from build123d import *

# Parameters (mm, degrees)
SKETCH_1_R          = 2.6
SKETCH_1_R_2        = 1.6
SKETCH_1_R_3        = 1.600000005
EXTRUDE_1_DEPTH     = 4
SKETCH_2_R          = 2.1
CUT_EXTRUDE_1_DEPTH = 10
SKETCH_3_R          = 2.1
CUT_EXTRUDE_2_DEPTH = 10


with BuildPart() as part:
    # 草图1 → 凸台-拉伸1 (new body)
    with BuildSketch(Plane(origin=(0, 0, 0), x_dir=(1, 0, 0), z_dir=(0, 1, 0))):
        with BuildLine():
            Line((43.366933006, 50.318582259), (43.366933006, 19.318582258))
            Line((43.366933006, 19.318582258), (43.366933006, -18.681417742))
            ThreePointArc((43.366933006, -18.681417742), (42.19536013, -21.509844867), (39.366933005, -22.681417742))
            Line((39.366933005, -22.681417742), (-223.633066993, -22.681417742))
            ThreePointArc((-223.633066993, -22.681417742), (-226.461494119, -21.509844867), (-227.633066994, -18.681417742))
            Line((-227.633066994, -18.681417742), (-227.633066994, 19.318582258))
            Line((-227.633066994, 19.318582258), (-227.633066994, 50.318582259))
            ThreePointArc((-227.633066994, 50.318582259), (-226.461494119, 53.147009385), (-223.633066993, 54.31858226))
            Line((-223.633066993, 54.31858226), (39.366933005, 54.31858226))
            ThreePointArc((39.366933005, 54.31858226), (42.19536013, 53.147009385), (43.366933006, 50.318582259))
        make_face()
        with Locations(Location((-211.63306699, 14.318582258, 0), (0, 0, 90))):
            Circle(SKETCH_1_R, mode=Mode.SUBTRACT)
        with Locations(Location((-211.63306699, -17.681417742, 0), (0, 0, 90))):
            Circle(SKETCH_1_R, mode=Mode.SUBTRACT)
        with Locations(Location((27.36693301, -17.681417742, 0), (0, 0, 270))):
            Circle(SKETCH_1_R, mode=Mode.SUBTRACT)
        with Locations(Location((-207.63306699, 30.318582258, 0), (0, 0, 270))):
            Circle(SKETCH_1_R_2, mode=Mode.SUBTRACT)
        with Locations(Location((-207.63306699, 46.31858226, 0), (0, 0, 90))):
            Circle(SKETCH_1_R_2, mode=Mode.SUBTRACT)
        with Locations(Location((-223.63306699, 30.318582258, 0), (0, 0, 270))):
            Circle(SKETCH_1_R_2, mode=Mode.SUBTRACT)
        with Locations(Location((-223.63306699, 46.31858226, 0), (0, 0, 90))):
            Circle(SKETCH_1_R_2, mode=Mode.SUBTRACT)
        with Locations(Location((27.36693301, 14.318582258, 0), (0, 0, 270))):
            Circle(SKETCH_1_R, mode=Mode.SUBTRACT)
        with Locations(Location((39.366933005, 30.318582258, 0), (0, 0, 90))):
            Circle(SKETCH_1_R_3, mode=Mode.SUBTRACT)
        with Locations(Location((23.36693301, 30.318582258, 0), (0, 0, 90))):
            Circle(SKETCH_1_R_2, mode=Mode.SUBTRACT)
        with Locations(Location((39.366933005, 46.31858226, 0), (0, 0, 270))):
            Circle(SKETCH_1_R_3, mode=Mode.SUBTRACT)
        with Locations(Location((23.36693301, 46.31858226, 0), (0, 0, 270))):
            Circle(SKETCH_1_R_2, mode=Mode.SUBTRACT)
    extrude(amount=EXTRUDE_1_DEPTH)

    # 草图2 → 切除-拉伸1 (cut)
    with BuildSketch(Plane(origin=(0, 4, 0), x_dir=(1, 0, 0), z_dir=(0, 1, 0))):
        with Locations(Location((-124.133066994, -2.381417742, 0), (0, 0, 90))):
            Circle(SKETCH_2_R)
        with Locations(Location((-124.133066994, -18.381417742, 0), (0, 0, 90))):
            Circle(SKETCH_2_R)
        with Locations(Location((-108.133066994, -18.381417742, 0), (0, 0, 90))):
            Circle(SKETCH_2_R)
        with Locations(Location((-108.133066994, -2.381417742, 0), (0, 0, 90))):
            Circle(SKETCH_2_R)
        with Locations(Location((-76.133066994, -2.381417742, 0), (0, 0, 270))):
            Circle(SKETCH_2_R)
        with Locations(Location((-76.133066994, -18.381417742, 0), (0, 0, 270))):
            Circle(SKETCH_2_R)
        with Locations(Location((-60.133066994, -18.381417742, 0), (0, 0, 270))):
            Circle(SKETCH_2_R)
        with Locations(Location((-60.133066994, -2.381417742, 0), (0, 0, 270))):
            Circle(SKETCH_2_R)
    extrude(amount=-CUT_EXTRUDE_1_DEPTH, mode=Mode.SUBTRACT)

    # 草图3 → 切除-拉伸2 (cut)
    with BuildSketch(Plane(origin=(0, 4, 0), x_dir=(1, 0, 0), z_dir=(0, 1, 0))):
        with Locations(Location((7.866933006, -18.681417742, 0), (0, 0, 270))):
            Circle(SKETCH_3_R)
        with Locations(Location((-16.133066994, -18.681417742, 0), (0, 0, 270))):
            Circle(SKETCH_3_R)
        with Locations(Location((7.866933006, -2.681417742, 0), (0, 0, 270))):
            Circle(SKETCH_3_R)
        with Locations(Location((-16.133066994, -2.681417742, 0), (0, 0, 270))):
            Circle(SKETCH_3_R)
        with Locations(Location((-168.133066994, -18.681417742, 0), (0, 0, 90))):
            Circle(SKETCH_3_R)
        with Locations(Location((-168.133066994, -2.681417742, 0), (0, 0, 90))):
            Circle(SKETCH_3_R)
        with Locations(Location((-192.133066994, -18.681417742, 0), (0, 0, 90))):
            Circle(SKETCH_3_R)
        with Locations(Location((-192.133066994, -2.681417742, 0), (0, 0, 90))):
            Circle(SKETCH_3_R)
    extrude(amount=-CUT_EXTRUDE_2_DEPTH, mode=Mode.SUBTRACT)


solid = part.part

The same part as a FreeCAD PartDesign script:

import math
import FreeCAD as App
import Part
import Sketcher

V = App.Vector

doc = App.newDocument("Part")
body = doc.addObject("PartDesign::Body", "Body")

# Sketch on XZ plane
sketch1 = doc.addObject("Sketcher::SketchObject", "Sketch")
body.addObject(sketch1)
sketch1.AttachmentSupport = (doc.XZ_Plane, [""])
sketch1.MapMode = "FlatFace"
sketch1.addGeometry(Part.LineSegment(V(43.4, 18.7, 0), V(43.4, -50.3, 0)), False)
sketch1.addGeometry(Part.ArcOfCircle(Part.Circle(V(39.4, -50.3, 0), V(0, 0, 1), 4), math.radians(-90), math.radians(0)), False)
sketch1.addGeometry(Part.LineSegment(V(39.4, -54.3, 0), V(-223.6, -54.3, 0)), False)
sketch1.addGeometry(Part.ArcOfCircle(Part.Circle(V(-223.6, -50.3, 0), V(0, 0, 1), 4), math.radians(180), math.radians(270)), False)
sketch1.addGeometry(Part.LineSegment(V(-227.6, -50.3, 0), V(-227.6, 18.7, 0)), False)
sketch1.addGeometry(Part.ArcOfCircle(Part.Circle(V(-223.6, 18.7, 0), V(0, 0, 1), 4), math.radians(90), math.radians(180)), False)
sketch1.addGeometry(Part.LineSegment(V(-223.6, 22.7, 0), V(39.4, 22.7, 0)), False)
sketch1.addGeometry(Part.ArcOfCircle(Part.Circle(V(39.4, 18.7, 0), V(0, 0, 1), 4), math.radians(0), math.radians(90)), False)
sketch1.addGeometry(Part.Circle(V(27.4, 17.7, 0), V(0, 0, 1), 2.6), False)
sketch1.addGeometry(Part.Circle(V(-211.6, 17.7, 0), V(0, 0, 1), 2.6), False)
sketch1.addGeometry(Part.Circle(V(27.4, -14.3, 0), V(0, 0, 1), 2.6), False)
sketch1.addGeometry(Part.Circle(V(39.4, -30.3, 0), V(0, 0, 1), 1.6), False)
sketch1.addGeometry(Part.Circle(V(23.4, -30.3, 0), V(0, 0, 1), 1.6), False)
sketch1.addGeometry(Part.Circle(V(39.4, -46.3, 0), V(0, 0, 1), 1.6), False)
sketch1.addGeometry(Part.Circle(V(23.4, -46.3, 0), V(0, 0, 1), 1.6), False)
sketch1.addGeometry(Part.Circle(V(-211.6, -14.3, 0), V(0, 0, 1), 2.6), False)
sketch1.addGeometry(Part.Circle(V(-207.6, -30.3, 0), V(0, 0, 1), 1.6), False)
sketch1.addGeometry(Part.Circle(V(-223.6, -30.3, 0), V(0, 0, 1), 1.6), False)
sketch1.addGeometry(Part.Circle(V(-207.6, -46.3, 0), V(0, 0, 1), 1.6), False)
sketch1.addGeometry(Part.Circle(V(-223.6, -46.3, 0), V(0, 0, 1), 1.6), False)
sketch1.addConstraint(Sketcher.Constraint("Tangent", 0, 2, 1, 2))
sketch1.addConstraint(Sketcher.Constraint("Tangent", 1, 1, 2, 1))
sketch1.addConstraint(Sketcher.Constraint("Tangent", 2, 2, 3, 2))
sketch1.addConstraint(Sketcher.Constraint("Tangent", 3, 1, 4, 1))
sketch1.addConstraint(Sketcher.Constraint("Tangent", 4, 2, 5, 2))
sketch1.addConstraint(Sketcher.Constraint("Tangent", 5, 1, 6, 1))
sketch1.addConstraint(Sketcher.Constraint("Tangent", 6, 2, 7, 2))
sketch1.addConstraint(Sketcher.Constraint("Tangent", 7, 1, 0, 1))
sketch1.addConstraint(Sketcher.Constraint("Vertical", 0))
sketch1.addConstraint(Sketcher.Constraint("Horizontal", 2))
sketch1.addConstraint(Sketcher.Constraint("Vertical", 4))
sketch1.addConstraint(Sketcher.Constraint("Horizontal", 6))
sketch1.addConstraint(Sketcher.Constraint("Equal", 1, 3))
sketch1.addConstraint(Sketcher.Constraint("Equal", 3, 5))
sketch1.addConstraint(Sketcher.Constraint("Equal", 5, 7))
sketch1.addConstraint(Sketcher.Constraint("Equal", 8, 9))
sketch1.addConstraint(Sketcher.Constraint("Equal", 9, 10))
sketch1.addConstraint(Sketcher.Constraint("Equal", 11, 12))
sketch1.addConstraint(Sketcher.Constraint("Equal", 12, 13))
sketch1.addConstraint(Sketcher.Constraint("Equal", 13, 14))
sketch1.addConstraint(Sketcher.Constraint("Equal", 10, 15))
sketch1.addConstraint(Sketcher.Constraint("Equal", 14, 16))
sketch1.addConstraint(Sketcher.Constraint("Equal", 16, 17))
sketch1.addConstraint(Sketcher.Constraint("Equal", 17, 18))
sketch1.addConstraint(Sketcher.Constraint("Equal", 18, 19))
sketch1.addConstraint(Sketcher.Constraint("Horizontal", 8, 3, 9, 3))
sketch1.addConstraint(Sketcher.Constraint("Horizontal", 11, 3, 12, 3))
sketch1.addConstraint(Sketcher.Constraint("Horizontal", 13, 3, 14, 3))
sketch1.addConstraint(Sketcher.Constraint("Horizontal", 10, 3, 15, 3))
sketch1.addConstraint(Sketcher.Constraint("Horizontal", 12, 3, 16, 3))
sketch1.addConstraint(Sketcher.Constraint("Horizontal", 16, 3, 17, 3))
sketch1.addConstraint(Sketcher.Constraint("Horizontal", 14, 3, 18, 3))
sketch1.addConstraint(Sketcher.Constraint("Horizontal", 18, 3, 19, 3))
sketch1.addConstraint(Sketcher.Constraint("Vertical", 8, 3, 10, 3))
sketch1.addConstraint(Sketcher.Constraint("Vertical", 7, 3, 11, 3))
sketch1.addConstraint(Sketcher.Constraint("Vertical", 11, 3, 13, 3))
sketch1.addConstraint(Sketcher.Constraint("Vertical", 12, 3, 14, 3))
sketch1.addConstraint(Sketcher.Constraint("Vertical", 9, 3, 15, 3))
sketch1.addConstraint(Sketcher.Constraint("Vertical", 5, 3, 17, 3))
sketch1.addConstraint(Sketcher.Constraint("Vertical", 16, 3, 18, 3))
sketch1.addConstraint(Sketcher.Constraint("Vertical", 17, 3, 19, 3))
sketch1.addConstraint(Sketcher.Constraint("Radius", 1, 4.0))
sketch1.addConstraint(Sketcher.Constraint("Diameter", 8, 5.2))
sketch1.addConstraint(Sketcher.Constraint("Diameter", 11, 3.2))
sketch1.addConstraint(Sketcher.Constraint("DistanceX", 2, 2, 2, 1, 263.0))
sketch1.addConstraint(Sketcher.Constraint("DistanceY", 0, 2, 0, 1, 69.0))
sketch1.addConstraint(Sketcher.Constraint("DistanceX", 8, 3, 7, 3, 12.0))
sketch1.addConstraint(Sketcher.Constraint("DistanceY", 8, 3, 7, 3, 1.0))
sketch1.addConstraint(Sketcher.Constraint("DistanceX", 5, 3, 9, 3, 12.0))
sketch1.addConstraint(Sketcher.Constraint("DistanceY", 10, 3, 8, 3, 32.0))
sketch1.addConstraint(Sketcher.Constraint("DistanceY", 11, 3, 10, 3, 16.0))
sketch1.addConstraint(Sketcher.Constraint("DistanceX", 12, 3, 11, 3, 16.0))
sketch1.addConstraint(Sketcher.Constraint("DistanceY", 1, 3, 13, 3, 4.0))
sketch1.addConstraint(Sketcher.Constraint("DistanceX", 15, 3, 16, 3, 4.0))
sketch1.addConstraint(Sketcher.Constraint("DistanceX", -1, 1, 1, 3, 39.366933))
sketch1.addConstraint(Sketcher.Constraint("DistanceY", 1, 3, -1, 1, 50.318582))
pad1 = doc.addObject("PartDesign::Pad", "Pad")
body.addObject(pad1)
pad1.Profile = sketch1
pad1.Length = 4
pad1.Reversed = True

# Sketch on XZ plane
sketch2 = doc.addObject("Sketcher::SketchObject", "Sketch001")
body.addObject(sketch2)
sketch2.AttachmentSupport = (doc.XZ_Plane, [""])
sketch2.MapMode = "FlatFace"
sketch2.AttachmentOffset = App.Placement(V(0, 0, -4), App.Rotation())
sketch2.addGeometry(Part.Circle(V(-124.1, 2.4, 0), V(0, 0, 1), 2.1), False)
sketch2.addGeometry(Part.Circle(V(-124.1, 18.4, 0), V(0, 0, 1), 2.1), False)
sketch2.addGeometry(Part.Circle(V(-108.1, 18.4, 0), V(0, 0, 1), 2.1), False)
sketch2.addGeometry(Part.Circle(V(-108.1, 2.4, 0), V(0, 0, 1), 2.1), False)
sketch2.addGeometry(Part.Circle(V(-76.1, 2.4, 0), V(0, 0, 1), 2.1), False)
sketch2.addGeometry(Part.Circle(V(-76.1, 18.4, 0), V(0, 0, 1), 2.1), False)
sketch2.addGeometry(Part.Circle(V(-60.1, 18.4, 0), V(0, 0, 1), 2.1), False)
sketch2.addGeometry(Part.Circle(V(-60.1, 2.4, 0), V(0, 0, 1), 2.1), False)
sketch2.addConstraint(Sketcher.Constraint("Equal", 0, 1))
sketch2.addConstraint(Sketcher.Constraint("Equal", 1, 2))
sketch2.addConstraint(Sketcher.Constraint("Equal", 2, 3))
sketch2.addConstraint(Sketcher.Constraint("Equal", 3, 4))
sketch2.addConstraint(Sketcher.Constraint("Equal", 4, 5))
sketch2.addConstraint(Sketcher.Constraint("Equal", 5, 6))
sketch2.addConstraint(Sketcher.Constraint("Equal", 6, 7))
sketch2.addConstraint(Sketcher.Constraint("Horizontal", 1, 3, 2, 3))
sketch2.addConstraint(Sketcher.Constraint("Horizontal", 0, 3, 3, 3))
sketch2.addConstraint(Sketcher.Constraint("Horizontal", 3, 3, 4, 3))
sketch2.addConstraint(Sketcher.Constraint("Horizontal", 2, 3, 5, 3))
sketch2.addConstraint(Sketcher.Constraint("Horizontal", 5, 3, 6, 3))
sketch2.addConstraint(Sketcher.Constraint("Horizontal", 4, 3, 7, 3))
sketch2.addConstraint(Sketcher.Constraint("Vertical", 0, 3, 1, 3))
sketch2.addConstraint(Sketcher.Constraint("Vertical", 2, 3, 3, 3))
sketch2.addConstraint(Sketcher.Constraint("Vertical", 4, 3, 5, 3))
sketch2.addConstraint(Sketcher.Constraint("Vertical", 6, 3, 7, 3))
sketch2.addConstraint(Sketcher.Constraint("Diameter", 0, 4.2))
sketch2.addConstraint(Sketcher.Constraint("DistanceY", 0, 3, 1, 3, 16.0))
sketch2.addConstraint(Sketcher.Constraint("DistanceX", 1, 3, 2, 3, 16.0))
sketch2.addConstraint(Sketcher.Constraint("DistanceX", 3, 3, 4, 3, 32.0))
sketch2.addConstraint(Sketcher.Constraint("DistanceX", 5, 3, 6, 3, 16.0))
sketch2.addConstraint(Sketcher.Constraint("DistanceX", 0, 3, -1, 1, 124.133067))
sketch2.addConstraint(Sketcher.Constraint("DistanceY", -1, 1, 0, 3, 2.381418))
pocket1 = doc.addObject("PartDesign::Pocket", "Pocket")
body.addObject(pocket1)
pocket1.Profile = sketch2
pocket1.Length = 10
pocket1.Reversed = True

# Sketch on XZ plane
sketch3 = doc.addObject("Sketcher::SketchObject", "Sketch002")
body.addObject(sketch3)
sketch3.AttachmentSupport = (doc.XZ_Plane, [""])
sketch3.MapMode = "FlatFace"
sketch3.AttachmentOffset = App.Placement(V(0, 0, -4), App.Rotation())
sketch3.addGeometry(Part.Circle(V(7.9, 18.7, 0), V(0, 0, 1), 2.1), False)
sketch3.addGeometry(Part.Circle(V(-16.1, 18.7, 0), V(0, 0, 1), 2.1), False)
sketch3.addGeometry(Part.Circle(V(7.9, 2.7, 0), V(0, 0, 1), 2.1), False)
sketch3.addGeometry(Part.Circle(V(-16.1, 2.7, 0), V(0, 0, 1), 2.1), False)
sketch3.addGeometry(Part.Circle(V(-168.1, 18.7, 0), V(0, 0, 1), 2.1), False)
sketch3.addGeometry(Part.Circle(V(-168.1, 2.7, 0), V(0, 0, 1), 2.1), False)
sketch3.addGeometry(Part.Circle(V(-192.1, 18.7, 0), V(0, 0, 1), 2.1), False)
sketch3.addGeometry(Part.Circle(V(-192.1, 2.7, 0), V(0, 0, 1), 2.1), False)
sketch3.addConstraint(Sketcher.Constraint("Equal", 0, 1))
sketch3.addConstraint(Sketcher.Constraint("Equal", 1, 2))
sketch3.addConstraint(Sketcher.Constraint("Equal", 2, 3))
sketch3.addConstraint(Sketcher.Constraint("Equal", 3, 4))
sketch3.addConstraint(Sketcher.Constraint("Equal", 4, 5))
sketch3.addConstraint(Sketcher.Constraint("Equal", 5, 6))
sketch3.addConstraint(Sketcher.Constraint("Equal", 6, 7))
sketch3.addConstraint(Sketcher.Constraint("Horizontal", 0, 3, 1, 3))
sketch3.addConstraint(Sketcher.Constraint("Horizontal", 2, 3, 3, 3))
sketch3.addConstraint(Sketcher.Constraint("Horizontal", 1, 3, 4, 3))
sketch3.addConstraint(Sketcher.Constraint("Horizontal", 3, 3, 5, 3))
sketch3.addConstraint(Sketcher.Constraint("Horizontal", 4, 3, 6, 3))
sketch3.addConstraint(Sketcher.Constraint("Horizontal", 5, 3, 7, 3))
sketch3.addConstraint(Sketcher.Constraint("Vertical", 0, 3, 2, 3))
sketch3.addConstraint(Sketcher.Constraint("Vertical", 1, 3, 3, 3))
sketch3.addConstraint(Sketcher.Constraint("Vertical", 4, 3, 5, 3))
sketch3.addConstraint(Sketcher.Constraint("Vertical", 6, 3, 7, 3))
sketch3.addConstraint(Sketcher.Constraint("Diameter", 0, 4.2))
sketch3.addConstraint(Sketcher.Constraint("DistanceX", 1, 3, 0, 3, 24.0))
sketch3.addConstraint(Sketcher.Constraint("DistanceY", 2, 3, 0, 3, 16.0))
sketch3.addConstraint(Sketcher.Constraint("DistanceX", 4, 3, 1, 3, 152.0))
sketch3.addConstraint(Sketcher.Constraint("DistanceX", 6, 3, 4, 3, 24.0))
sketch3.addConstraint(Sketcher.Constraint("DistanceX", -1, 1, 0, 3, 7.866933))
sketch3.addConstraint(Sketcher.Constraint("DistanceY", -1, 1, 0, 3, 18.681418))
pocket2 = doc.addObject("PartDesign::Pocket", "Pocket001")
body.addObject(pocket2)
pocket2.Profile = sketch3
pocket2.Length = 10
pocket2.Reversed = True

doc.recompute()
